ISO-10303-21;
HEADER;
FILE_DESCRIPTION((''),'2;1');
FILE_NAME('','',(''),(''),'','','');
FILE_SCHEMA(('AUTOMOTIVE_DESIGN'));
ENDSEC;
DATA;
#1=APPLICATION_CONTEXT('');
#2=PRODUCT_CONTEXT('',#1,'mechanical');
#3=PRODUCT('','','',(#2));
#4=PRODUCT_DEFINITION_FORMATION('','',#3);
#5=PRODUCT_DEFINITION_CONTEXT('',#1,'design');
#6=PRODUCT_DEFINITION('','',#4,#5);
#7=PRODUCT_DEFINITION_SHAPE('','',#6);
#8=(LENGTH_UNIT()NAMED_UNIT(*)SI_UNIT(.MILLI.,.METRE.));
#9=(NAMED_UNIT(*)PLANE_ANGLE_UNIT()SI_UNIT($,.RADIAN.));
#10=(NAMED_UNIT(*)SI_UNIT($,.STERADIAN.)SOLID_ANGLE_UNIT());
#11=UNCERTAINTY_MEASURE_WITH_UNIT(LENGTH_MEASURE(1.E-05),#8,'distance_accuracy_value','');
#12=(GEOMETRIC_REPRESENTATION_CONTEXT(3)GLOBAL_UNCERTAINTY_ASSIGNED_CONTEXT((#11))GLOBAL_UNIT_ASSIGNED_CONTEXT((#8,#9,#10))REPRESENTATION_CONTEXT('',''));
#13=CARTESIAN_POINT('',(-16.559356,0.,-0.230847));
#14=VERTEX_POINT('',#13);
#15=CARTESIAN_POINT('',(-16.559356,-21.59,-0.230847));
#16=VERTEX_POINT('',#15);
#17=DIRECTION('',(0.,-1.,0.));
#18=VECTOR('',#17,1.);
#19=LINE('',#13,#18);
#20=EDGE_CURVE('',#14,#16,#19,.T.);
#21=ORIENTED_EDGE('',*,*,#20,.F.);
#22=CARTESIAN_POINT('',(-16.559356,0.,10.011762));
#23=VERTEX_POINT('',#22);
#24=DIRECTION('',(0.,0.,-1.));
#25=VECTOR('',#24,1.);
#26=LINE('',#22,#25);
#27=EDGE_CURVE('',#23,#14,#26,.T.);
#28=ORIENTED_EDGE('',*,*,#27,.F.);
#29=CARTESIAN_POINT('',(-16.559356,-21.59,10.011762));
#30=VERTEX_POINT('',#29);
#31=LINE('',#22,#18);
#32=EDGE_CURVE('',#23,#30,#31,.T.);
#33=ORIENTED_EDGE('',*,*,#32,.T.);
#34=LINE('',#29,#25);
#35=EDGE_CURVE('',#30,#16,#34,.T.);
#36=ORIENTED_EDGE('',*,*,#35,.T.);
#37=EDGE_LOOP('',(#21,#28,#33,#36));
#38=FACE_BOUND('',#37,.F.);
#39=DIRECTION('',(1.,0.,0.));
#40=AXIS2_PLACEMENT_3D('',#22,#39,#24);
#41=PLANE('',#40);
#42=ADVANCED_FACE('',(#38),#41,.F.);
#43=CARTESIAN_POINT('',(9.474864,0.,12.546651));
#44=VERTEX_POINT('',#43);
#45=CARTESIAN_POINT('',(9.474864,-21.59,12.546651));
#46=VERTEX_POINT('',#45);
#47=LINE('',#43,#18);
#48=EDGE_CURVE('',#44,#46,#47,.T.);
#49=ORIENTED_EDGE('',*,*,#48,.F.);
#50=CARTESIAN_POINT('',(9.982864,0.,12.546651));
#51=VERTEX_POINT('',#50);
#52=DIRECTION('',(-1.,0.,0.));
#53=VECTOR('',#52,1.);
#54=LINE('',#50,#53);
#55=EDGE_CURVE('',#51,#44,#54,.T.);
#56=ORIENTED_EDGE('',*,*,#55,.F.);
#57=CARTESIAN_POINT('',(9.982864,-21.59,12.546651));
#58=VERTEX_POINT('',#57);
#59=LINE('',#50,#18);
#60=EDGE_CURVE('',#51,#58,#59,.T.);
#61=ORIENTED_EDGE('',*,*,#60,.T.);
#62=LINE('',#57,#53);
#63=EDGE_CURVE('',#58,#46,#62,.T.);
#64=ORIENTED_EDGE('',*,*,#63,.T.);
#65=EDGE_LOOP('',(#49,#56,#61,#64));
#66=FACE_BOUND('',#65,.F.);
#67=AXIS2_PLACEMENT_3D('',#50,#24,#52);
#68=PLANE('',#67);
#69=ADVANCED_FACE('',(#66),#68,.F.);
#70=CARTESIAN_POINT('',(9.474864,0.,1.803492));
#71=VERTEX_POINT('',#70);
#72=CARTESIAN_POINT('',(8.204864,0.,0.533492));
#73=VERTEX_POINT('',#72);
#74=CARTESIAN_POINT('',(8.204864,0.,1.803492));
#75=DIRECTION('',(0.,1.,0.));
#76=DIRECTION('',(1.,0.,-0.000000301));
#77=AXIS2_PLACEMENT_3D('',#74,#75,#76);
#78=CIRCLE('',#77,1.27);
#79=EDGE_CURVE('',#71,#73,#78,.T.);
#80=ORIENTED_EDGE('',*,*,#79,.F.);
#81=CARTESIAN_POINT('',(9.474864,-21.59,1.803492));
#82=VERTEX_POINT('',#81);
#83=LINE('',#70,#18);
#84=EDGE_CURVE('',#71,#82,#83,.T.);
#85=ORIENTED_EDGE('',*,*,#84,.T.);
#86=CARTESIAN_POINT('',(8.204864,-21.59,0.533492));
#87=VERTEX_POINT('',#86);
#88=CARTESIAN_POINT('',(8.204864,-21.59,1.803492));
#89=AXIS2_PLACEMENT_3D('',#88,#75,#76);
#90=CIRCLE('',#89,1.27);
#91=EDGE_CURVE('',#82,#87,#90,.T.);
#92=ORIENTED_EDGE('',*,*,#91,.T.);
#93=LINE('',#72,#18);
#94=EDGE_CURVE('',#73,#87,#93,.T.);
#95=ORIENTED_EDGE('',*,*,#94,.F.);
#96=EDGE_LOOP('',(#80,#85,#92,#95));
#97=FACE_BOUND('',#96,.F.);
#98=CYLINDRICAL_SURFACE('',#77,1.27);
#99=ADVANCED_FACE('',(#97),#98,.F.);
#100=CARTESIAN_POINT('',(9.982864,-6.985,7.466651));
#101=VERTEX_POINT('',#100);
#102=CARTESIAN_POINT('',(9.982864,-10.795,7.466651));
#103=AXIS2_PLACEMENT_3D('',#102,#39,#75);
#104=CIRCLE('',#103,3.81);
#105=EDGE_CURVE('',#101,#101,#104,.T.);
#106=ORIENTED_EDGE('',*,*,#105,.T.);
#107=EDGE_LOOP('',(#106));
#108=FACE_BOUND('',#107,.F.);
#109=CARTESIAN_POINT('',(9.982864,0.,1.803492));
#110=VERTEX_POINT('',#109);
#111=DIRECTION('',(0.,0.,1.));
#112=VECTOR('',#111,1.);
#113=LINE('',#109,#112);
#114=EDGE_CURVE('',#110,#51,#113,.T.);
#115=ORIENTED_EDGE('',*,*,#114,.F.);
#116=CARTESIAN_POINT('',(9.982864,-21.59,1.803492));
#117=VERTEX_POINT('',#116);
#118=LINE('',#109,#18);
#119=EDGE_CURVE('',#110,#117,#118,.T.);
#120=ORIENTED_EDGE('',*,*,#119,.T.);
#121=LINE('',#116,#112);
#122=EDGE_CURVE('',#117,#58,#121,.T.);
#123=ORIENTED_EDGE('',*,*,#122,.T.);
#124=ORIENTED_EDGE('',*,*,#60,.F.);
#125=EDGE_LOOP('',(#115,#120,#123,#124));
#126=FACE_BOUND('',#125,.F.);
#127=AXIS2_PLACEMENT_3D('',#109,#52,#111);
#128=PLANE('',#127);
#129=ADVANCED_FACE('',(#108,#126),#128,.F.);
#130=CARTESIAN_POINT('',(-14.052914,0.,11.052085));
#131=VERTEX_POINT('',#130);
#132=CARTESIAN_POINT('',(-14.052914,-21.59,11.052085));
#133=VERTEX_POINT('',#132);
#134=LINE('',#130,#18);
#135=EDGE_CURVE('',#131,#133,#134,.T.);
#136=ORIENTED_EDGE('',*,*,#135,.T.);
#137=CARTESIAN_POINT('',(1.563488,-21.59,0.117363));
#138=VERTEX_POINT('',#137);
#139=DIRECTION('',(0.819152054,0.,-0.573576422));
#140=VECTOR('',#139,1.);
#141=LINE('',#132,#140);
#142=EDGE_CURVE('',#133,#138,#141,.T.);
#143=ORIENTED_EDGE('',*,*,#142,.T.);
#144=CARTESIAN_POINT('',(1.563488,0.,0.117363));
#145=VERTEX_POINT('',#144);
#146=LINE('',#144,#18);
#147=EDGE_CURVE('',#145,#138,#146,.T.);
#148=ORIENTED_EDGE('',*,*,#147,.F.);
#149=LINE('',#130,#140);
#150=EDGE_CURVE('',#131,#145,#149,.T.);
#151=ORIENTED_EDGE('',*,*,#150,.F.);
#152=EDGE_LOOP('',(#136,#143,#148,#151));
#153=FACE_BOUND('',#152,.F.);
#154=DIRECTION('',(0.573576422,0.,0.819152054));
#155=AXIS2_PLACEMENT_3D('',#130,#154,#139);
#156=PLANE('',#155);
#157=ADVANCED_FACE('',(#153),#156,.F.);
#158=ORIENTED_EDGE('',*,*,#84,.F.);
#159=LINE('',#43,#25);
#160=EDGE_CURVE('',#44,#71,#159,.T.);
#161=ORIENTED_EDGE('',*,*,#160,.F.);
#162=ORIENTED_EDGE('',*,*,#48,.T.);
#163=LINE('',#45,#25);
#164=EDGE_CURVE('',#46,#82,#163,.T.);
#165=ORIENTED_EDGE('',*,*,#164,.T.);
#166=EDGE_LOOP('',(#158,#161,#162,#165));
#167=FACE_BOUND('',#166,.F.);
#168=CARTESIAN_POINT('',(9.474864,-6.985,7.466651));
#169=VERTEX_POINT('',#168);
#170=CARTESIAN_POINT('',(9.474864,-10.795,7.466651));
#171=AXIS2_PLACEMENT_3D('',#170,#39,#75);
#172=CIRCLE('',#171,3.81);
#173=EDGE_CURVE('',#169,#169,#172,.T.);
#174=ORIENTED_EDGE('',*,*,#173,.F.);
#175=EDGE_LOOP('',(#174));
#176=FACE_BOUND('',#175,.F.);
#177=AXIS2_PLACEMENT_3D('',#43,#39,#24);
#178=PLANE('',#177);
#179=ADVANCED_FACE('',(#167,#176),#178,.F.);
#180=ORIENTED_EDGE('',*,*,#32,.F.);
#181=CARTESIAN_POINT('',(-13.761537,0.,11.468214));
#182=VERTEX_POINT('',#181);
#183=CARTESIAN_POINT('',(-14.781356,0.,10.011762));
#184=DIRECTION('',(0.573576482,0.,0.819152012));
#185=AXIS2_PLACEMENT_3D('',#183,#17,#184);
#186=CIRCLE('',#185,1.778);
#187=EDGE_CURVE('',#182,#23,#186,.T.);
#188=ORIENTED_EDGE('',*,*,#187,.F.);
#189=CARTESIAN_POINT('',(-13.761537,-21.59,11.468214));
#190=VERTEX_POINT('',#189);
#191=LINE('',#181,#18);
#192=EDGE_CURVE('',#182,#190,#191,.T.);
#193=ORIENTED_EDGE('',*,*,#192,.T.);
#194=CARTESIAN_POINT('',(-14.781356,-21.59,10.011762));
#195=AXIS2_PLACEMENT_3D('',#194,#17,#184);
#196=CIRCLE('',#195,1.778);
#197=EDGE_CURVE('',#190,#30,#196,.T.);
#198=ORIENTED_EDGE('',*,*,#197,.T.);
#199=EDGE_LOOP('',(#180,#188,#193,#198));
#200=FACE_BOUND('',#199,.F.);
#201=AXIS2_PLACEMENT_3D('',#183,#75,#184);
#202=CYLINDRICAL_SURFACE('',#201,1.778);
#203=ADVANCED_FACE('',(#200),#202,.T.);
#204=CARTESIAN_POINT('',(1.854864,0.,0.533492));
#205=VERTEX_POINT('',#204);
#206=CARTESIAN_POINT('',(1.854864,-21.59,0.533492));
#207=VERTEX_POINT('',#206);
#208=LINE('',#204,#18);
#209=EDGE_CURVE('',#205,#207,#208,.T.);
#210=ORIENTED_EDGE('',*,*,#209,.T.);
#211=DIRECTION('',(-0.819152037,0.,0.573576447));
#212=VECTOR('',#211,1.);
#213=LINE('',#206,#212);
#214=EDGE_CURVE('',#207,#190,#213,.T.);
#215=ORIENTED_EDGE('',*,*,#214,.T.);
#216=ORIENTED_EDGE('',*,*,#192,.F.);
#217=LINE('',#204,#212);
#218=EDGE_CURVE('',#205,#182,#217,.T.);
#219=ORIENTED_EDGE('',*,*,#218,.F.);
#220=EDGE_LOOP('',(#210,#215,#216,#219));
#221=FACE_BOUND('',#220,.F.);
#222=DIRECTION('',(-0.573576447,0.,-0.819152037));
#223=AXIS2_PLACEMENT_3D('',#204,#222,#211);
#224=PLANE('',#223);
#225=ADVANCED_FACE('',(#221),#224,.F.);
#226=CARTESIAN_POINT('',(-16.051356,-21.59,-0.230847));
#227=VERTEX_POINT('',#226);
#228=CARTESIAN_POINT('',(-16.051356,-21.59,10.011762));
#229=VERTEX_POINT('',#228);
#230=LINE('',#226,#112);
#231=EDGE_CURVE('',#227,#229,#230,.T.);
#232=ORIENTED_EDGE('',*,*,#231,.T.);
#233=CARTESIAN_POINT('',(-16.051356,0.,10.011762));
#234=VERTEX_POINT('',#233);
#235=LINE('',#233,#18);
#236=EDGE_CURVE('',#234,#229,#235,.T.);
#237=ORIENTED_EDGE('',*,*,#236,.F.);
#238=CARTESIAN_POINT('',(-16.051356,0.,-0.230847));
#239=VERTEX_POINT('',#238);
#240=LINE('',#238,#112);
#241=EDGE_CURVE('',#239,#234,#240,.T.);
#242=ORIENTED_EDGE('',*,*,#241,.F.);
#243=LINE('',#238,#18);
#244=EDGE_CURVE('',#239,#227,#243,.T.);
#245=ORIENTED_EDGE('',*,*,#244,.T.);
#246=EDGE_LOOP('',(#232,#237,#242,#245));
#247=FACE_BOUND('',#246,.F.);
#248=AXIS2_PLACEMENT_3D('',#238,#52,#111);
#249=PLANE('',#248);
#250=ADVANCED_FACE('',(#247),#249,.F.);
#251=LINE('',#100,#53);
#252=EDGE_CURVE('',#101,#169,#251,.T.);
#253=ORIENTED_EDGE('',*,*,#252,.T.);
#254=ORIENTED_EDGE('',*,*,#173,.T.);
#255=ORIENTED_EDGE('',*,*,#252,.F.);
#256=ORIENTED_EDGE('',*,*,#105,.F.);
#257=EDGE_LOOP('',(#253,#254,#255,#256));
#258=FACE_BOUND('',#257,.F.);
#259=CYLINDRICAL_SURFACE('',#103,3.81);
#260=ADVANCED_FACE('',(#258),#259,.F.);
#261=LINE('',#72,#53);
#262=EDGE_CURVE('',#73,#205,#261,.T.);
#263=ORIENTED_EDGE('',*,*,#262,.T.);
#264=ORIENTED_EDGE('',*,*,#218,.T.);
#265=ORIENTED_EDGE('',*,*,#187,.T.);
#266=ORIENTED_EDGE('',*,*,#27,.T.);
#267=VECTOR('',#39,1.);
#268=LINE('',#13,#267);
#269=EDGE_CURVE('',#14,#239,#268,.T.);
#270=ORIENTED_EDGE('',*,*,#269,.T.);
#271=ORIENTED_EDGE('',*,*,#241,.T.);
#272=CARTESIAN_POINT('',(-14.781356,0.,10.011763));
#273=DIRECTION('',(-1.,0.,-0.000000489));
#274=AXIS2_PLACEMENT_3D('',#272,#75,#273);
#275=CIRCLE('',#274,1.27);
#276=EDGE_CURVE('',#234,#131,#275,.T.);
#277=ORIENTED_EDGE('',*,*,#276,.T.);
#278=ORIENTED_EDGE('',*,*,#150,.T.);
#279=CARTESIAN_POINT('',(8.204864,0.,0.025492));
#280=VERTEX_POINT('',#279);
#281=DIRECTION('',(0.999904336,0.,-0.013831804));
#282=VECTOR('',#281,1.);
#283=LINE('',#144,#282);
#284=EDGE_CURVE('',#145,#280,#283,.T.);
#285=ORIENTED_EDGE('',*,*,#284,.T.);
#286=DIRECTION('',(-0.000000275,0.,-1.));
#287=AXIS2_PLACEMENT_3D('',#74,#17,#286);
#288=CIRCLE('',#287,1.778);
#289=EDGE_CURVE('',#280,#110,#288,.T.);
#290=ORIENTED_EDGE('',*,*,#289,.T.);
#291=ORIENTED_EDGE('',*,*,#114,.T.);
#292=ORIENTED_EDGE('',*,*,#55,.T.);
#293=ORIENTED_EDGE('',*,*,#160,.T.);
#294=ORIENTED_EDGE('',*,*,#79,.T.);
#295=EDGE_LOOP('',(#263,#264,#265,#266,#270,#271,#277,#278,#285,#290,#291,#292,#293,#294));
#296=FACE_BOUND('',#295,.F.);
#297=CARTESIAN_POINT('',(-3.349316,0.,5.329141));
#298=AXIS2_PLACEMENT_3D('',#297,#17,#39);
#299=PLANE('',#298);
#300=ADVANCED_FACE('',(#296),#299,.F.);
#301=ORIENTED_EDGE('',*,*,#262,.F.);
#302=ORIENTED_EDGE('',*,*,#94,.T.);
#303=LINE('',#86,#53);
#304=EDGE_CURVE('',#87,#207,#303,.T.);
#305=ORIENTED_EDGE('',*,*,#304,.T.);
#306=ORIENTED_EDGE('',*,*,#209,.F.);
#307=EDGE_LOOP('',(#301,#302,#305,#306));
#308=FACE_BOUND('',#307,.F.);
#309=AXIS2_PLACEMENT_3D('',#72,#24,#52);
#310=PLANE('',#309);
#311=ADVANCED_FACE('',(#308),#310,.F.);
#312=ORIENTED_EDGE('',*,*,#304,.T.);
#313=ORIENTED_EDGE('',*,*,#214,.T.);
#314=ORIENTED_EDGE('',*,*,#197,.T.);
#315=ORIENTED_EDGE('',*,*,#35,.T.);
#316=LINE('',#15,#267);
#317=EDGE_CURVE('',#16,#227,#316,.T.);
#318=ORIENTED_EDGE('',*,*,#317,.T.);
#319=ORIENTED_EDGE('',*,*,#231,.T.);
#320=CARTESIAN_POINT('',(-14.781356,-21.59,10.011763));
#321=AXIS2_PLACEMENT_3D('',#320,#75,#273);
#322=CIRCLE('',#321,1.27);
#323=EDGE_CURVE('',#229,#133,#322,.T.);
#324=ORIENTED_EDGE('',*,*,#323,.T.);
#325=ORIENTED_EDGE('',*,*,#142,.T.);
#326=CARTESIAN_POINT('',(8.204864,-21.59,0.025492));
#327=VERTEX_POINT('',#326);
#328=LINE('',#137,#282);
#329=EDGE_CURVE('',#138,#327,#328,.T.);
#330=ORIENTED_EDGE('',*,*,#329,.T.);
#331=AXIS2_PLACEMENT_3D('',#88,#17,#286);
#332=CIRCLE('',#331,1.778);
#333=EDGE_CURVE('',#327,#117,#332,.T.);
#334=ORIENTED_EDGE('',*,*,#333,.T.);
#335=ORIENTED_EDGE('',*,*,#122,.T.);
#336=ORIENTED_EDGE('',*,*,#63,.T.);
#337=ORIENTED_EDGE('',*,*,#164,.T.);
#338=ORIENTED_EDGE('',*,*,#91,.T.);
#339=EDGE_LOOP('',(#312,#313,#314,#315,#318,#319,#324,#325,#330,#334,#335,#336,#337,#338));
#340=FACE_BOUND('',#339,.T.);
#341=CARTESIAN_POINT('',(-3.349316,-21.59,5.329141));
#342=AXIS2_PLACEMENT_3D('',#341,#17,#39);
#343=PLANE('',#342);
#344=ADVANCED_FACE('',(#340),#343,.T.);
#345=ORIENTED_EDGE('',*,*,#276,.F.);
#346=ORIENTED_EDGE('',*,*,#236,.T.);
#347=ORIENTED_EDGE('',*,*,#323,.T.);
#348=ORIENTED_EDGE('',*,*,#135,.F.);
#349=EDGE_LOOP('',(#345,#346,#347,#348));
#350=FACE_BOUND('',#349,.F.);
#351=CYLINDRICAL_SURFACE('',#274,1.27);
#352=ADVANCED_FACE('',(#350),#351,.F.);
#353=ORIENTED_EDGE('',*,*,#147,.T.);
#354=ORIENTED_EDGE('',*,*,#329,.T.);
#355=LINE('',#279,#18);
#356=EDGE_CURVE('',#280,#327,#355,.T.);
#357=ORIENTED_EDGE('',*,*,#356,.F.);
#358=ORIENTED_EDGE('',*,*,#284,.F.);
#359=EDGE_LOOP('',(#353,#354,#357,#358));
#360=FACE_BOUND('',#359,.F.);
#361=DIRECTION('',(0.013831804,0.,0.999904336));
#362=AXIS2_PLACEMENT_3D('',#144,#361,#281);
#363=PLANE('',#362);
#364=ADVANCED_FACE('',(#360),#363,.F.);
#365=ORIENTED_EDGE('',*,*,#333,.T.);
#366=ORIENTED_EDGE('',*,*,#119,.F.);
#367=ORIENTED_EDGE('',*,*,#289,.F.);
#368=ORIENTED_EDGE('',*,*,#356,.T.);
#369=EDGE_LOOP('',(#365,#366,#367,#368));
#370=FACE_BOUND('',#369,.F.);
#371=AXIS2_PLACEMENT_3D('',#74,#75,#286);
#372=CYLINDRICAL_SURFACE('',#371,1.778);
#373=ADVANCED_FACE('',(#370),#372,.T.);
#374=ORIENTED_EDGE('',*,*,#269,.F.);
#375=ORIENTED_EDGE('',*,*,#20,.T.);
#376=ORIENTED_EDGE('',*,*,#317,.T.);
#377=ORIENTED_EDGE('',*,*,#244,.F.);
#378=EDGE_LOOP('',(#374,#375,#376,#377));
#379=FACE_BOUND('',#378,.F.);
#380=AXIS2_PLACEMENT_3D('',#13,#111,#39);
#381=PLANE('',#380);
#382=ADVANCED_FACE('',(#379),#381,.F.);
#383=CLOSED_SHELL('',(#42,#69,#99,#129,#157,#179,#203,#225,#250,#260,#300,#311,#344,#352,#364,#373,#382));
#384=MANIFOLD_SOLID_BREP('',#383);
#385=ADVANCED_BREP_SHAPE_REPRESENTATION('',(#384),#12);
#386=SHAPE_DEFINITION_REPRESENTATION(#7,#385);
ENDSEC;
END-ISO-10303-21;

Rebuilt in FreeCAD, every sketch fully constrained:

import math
import FreeCAD as App
import Part
import Sketcher

V = App.Vector
Q = App.Units.Quantity

doc = App.newDocument("Part")
body = doc.addObject("PartDesign::Body", "Body")

# Sketch on XZ plane
sketch1 = body.newObject("Sketcher::SketchObject", "Sketch")
sketch1.AttachmentSupport = (doc.getObject("XZ_Plane"), [""])
sketch1.MapMode = "FlatFace"
sketch1.addGeometry(Part.LineSegment(V(-16.6, -0.2, 0), V(-16.1, -0.2, 0)), False)
sketch1.addGeometry(Part.LineSegment(V(-16.1, -0.2, 0), V(-16.1, 10, 0)), False)
sketch1.addGeometry(Part.ArcOfCircle(Part.Circle(V(-14.8, 10, 0), V(0, 0, 1), 1.3), math.radians(55), math.radians(180)), False)
sketch1.addGeometry(Part.LineSegment(V(-14.1, 11.1, 0), V(1.6, 0.1, 0)), False)
sketch1.addGeometry(Part.LineSegment(V(1.6, 0.1, 0), V(8.2, 0, 0)), False)
sketch1.addGeometry(Part.ArcOfCircle(Part.Circle(V(8.2, 1.8, 0), V(0, 0, 1), 1.8), math.radians(-90), math.radians(0)), False)
sketch1.addGeometry(Part.LineSegment(V(10, 1.8, 0), V(10, 12.5, 0)), False)
sketch1.addGeometry(Part.LineSegment(V(10, 12.5, 0), V(9.5, 12.5, 0)), False)
sketch1.addGeometry(Part.LineSegment(V(9.5, 12.5, 0), V(9.5, 1.8, 0)), False)
sketch1.addGeometry(Part.ArcOfCircle(Part.Circle(V(8.2, 1.8, 0), V(0, 0, 1), 1.3), math.radians(-90), math.radians(0)), False)
sketch1.addGeometry(Part.LineSegment(V(8.2, 0.5, 0), V(1.9, 0.5, 0)), False)
sketch1.addGeometry(Part.LineSegment(V(1.9, 0.5, 0), V(-13.8, 11.5, 0)), False)
sketch1.addGeometry(Part.ArcOfCircle(Part.Circle(V(-14.8, 10, 0), V(0, 0, 1), 1.8), math.radians(55), math.radians(180)), False)
sketch1.addGeometry(Part.LineSegment(V(-16.6, 10, 0), V(-16.6, -0.2, 0)), False)
sketch1.addConstraint(Sketcher.Constraint("Coincident", 0, 2, 1, 1))
sketch1.addConstraint(Sketcher.Constraint("Tangent", 1, 2, 2, 2))
sketch1.addConstraint(Sketcher.Constraint("Tangent", 2, 1, 3, 1))
sketch1.addConstraint(Sketcher.Constraint("Coincident", 3, 2, 4, 1))
sketch1.addConstraint(Sketcher.Constraint("Coincident", 4, 2, 5, 1))
sketch1.addConstraint(Sketcher.Constraint("Tangent", 5, 2, 6, 1))
sketch1.addConstraint(Sketcher.Constraint("Coincident", 6, 2, 7, 1))
sketch1.addConstraint(Sketcher.Constraint("Coincident", 7, 2, 8, 1))
sketch1.addConstraint(Sketcher.Constraint("Tangent", 8, 2, 9, 2))
sketch1.addConstraint(Sketcher.Constraint("Tangent", 9, 1, 10, 1))
sketch1.addConstraint(Sketcher.Constraint("Coincident", 10, 2, 11, 1))
sketch1.addConstraint(Sketcher.Constraint("Tangent", 11, 2, 12, 1))
sketch1.addConstraint(Sketcher.Constraint("Tangent", 12, 2, 13, 1))
sketch1.addConstraint(Sketcher.Constraint("Coincident", 13, 2, 0, 1))
sketch1.addConstraint(Sketcher.Constraint("Horizontal", 0))
sketch1.addConstraint(Sketcher.Constraint("Vertical", 1))
sketch1.addConstraint(Sketcher.Constraint("Vertical", 6))
sketch1.addConstraint(Sketcher.Constraint("Horizontal", 7))
sketch1.addConstraint(Sketcher.Constraint("Vertical", 8))
sketch1.addConstraint(Sketcher.Constraint("Horizontal", 10))
sketch1.addConstraint(Sketcher.Constraint("Vertical", 13))
sketch1.addConstraint(Sketcher.Constraint("Coincident", 9, 3, 5, 3))
sketch1.addConstraint(Sketcher.Constraint("Coincident", 12, 3, 2, 3))
sketch1.addConstraint(Sketcher.Constraint("Equal", 2, 9))
sketch1.addConstraint(Sketcher.Constraint("Equal", 5, 12))
sketch1.addConstraint(Sketcher.Constraint("Parallel", 3, 11))
sketch1.addConstraint(Sketcher.Constraint("Vertical", 9, 3, 4, 2))
sketch1.addConstraint(Sketcher.Constraint("Equal", 3, 11))
sketch1.addConstraint(Sketcher.Constraint("Radius", 2, Q("0.05 in")))
sketch1.addConstraint(Sketcher.Constraint("Radius", 5, Q("0.07 in")))
sketch1.addConstraint(Sketcher.Constraint("Angle", 3, Q("-34.999999 deg")))
sketch1.addConstraint(Sketcher.Constraint("DistanceX", 10, 2, 10, 1, Q("0.25 in")))
sketch1.addConstraint(Sketcher.Constraint("DistanceY", 1, 1, 1, 2, Q("10.242609 mm")))
sketch1.addConstraint(Sketcher.Constraint("DistanceY", 6, 1, 6, 2, Q("10.743159 mm")))
sketch1.addConstraint(Sketcher.Constraint("DistanceX", 2, 1, 3, 2, Q("15.616402 mm")))
sketch1.addConstraint(Sketcher.Constraint("DistanceY", -1, 1, 5, 3, Q("1.803492 mm")))
sketch1.addConstraint(Sketcher.Constraint("DistanceX", 2, 3, -1, 1, Q("14.781356 mm")))
pad1 = body.newObject("PartDesign::Pad", "Pad")
pad1.Profile = sketch1
pad1.Length = Q("0.85 in")

# Sketch on YZ plane
sketch2 = body.newObject("Sketcher::SketchObject", "Sketch001")
sketch2.AttachmentSupport = (doc.getObject("YZ_Plane"), [""])
sketch2.MapMode = "FlatFace"
sketch2.AttachmentOffset = App.Placement(V(0, 0, 9.982864), App.Rotation())
sketch2.addGeometry(Part.Circle(V(-10.8, 7.5, 0), V(0, 0, 1), 3.8), False)
sketch2.addConstraint(Sketcher.Constraint("Diameter", 0, Q("0.3 in")))
sketch2.addConstraint(Sketcher.Constraint("DistanceX", 0, 3, -1, 1, Q("0.425 in")))
sketch2.addConstraint(Sketcher.Constraint("DistanceY", -1, 1, 0, 3, Q("7.466651 mm")))
pocket1 = body.newObject("PartDesign::Pocket", "Pocket")
pocket1.Profile = sketch2
pocket1.Length = Q("0.02 in")

doc.recompute()
